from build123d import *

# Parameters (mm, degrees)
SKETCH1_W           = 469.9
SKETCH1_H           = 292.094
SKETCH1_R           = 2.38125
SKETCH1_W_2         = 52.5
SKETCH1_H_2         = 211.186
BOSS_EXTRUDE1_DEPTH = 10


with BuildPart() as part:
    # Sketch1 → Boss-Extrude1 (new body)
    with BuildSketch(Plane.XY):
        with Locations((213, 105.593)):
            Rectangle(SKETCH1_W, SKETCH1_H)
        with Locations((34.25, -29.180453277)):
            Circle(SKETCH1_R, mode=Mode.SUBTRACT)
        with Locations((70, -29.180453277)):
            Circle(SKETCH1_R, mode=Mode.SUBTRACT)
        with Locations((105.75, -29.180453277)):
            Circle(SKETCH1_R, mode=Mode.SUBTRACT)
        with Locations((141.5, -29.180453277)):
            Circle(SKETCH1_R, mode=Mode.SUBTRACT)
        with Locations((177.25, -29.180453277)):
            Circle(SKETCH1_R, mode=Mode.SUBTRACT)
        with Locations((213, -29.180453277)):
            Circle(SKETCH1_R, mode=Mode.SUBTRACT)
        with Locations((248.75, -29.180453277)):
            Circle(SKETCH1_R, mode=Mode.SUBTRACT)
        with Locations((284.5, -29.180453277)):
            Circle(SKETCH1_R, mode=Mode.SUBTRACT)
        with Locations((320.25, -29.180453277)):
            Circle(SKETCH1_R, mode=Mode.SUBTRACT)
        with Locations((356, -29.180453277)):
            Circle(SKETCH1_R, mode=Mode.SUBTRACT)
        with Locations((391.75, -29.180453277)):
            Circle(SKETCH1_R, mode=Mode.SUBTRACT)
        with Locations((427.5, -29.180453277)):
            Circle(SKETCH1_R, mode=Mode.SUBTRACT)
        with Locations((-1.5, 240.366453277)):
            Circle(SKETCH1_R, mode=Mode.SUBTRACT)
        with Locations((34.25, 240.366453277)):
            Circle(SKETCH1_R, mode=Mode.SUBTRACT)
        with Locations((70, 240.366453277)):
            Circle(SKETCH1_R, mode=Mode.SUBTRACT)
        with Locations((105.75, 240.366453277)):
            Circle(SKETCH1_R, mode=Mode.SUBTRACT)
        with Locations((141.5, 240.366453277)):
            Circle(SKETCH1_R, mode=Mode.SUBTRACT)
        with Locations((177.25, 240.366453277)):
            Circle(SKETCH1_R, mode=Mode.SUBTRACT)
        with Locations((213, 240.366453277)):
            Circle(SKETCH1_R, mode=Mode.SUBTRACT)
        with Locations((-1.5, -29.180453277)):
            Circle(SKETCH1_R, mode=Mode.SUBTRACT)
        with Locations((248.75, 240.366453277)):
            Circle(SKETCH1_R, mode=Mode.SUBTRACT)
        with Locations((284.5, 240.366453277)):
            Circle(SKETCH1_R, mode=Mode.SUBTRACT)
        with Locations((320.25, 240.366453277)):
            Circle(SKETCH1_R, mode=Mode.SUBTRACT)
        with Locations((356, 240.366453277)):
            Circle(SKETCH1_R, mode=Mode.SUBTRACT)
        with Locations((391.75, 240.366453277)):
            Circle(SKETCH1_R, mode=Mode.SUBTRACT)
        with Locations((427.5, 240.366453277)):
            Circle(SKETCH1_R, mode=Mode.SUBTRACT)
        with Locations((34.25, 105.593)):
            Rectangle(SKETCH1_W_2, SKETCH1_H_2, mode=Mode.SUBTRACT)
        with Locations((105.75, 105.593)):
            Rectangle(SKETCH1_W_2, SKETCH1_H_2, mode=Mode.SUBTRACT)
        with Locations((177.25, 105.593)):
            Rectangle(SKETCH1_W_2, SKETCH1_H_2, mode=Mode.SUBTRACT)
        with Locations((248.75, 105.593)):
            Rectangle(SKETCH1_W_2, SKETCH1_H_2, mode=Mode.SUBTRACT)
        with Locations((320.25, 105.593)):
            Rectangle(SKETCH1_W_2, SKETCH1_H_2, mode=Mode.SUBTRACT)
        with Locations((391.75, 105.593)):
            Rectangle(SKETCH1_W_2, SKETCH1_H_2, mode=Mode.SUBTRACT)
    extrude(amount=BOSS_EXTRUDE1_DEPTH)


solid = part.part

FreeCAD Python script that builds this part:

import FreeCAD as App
import Part
import Sketcher


def add_polygon(sketch, points):
    """Adds a closed chain of lines whose ends are joined by coincident constraints."""
    first, n = sketch.GeometryCount, len(points)
    for a, b in zip(points, points[1:] + points[:1]):
        sketch.addGeometry(Part.LineSegment(App.Vector(*a, 0), App.Vector(*b, 0)), False)
    for i in range(n):
        sketch.addConstraint(Sketcher.Constraint("Coincident", first + i, 2, first + (i + 1) % n, 1))

doc = App.newDocument("Part")
body = doc.addObject("PartDesign::Body", "Body")

sketch1 = body.newObject("Sketcher::SketchObject", "Sketch")
sketch1.AttachmentSupport = (doc.getObject("XY_Plane"), [""])
sketch1.MapMode = "FlatFace"
add_polygon(sketch1, [(-21.9, 251.6), (-21.9, -40.5), (447.9, -40.5), (447.9, 251.6)])
sketch1.addGeometry(Part.Circle(App.Vector(-1.5, -29.2, 0), App.Vector(0, 0, 1), 2.4), False)
sketch1.addGeometry(Part.Circle(App.Vector(34.2, -29.2, 0), App.Vector(0, 0, 1), 2.4), False)
sketch1.addGeometry(Part.Circle(App.Vector(70, -29.2, 0), App.Vector(0, 0, 1), 2.4), False)
sketch1.addGeometry(Part.Circle(App.Vector(105.8, -29.2, 0), App.Vector(0, 0, 1), 2.4), False)
sketch1.addGeometry(Part.Circle(App.Vector(141.5, -29.2, 0), App.Vector(0, 0, 1), 2.4), False)
sketch1.addGeometry(Part.Circle(App.Vector(177.2, -29.2, 0), App.Vector(0, 0, 1), 2.4), False)
sketch1.addGeometry(Part.Circle(App.Vector(213, -29.2, 0), App.Vector(0, 0, 1), 2.4), False)
sketch1.addGeometry(Part.Circle(App.Vector(248.8, -29.2, 0), App.Vector(0, 0, 1), 2.4), False)
sketch1.addGeometry(Part.Circle(App.Vector(284.5, -29.2, 0), App.Vector(0, 0, 1), 2.4), False)
sketch1.addGeometry(Part.Circle(App.Vector(320.2, -29.2, 0), App.Vector(0, 0, 1), 2.4), False)
sketch1.addGeometry(Part.Circle(App.Vector(356, -29.2, 0), App.Vector(0, 0, 1), 2.4), False)
sketch1.addGeometry(Part.Circle(App.Vector(391.8, -29.2, 0), App.Vector(0, 0, 1), 2.4), False)
sketch1.addGeometry(Part.Circle(App.Vector(427.5, -29.2, 0), App.Vector(0, 0, 1), 2.4), False)
add_polygon(sketch1, [(60.5, 0), (8, 0), (8, 211.2), (60.5, 211.2)])
add_polygon(sketch1, [(132, 0), (79.5, 0), (79.5, 211.2), (132, 211.2)])
add_polygon(sketch1, [(203.5, 0), (151, 0), (151, 211.2), (203.5, 211.2)])
sketch1.addGeometry(Part.Circle(App.Vector(-1.5, 240.4, 0), App.Vector(0, 0, 1), 2.4), False)
sketch1.addGeometry(Part.Circle(App.Vector(34.2, 240.4, 0), App.Vector(0, 0, 1), 2.4), False)
sketch1.addGeometry(Part.Circle(App.Vector(70, 240.4, 0), App.Vector(0, 0, 1), 2.4), False)
sketch1.addGeometry(Part.Circle(App.Vector(105.8, 240.4, 0), App.Vector(0, 0, 1), 2.4), False)
sketch1.addGeometry(Part.Circle(App.Vector(141.5, 240.4, 0), App.Vector(0, 0, 1), 2.4), False)
sketch1.addGeometry(Part.Circle(App.Vector(177.2, 240.4, 0), App.Vector(0, 0, 1), 2.4), False)
add_polygon(sketch1, [(275, 0), (222.5, 0), (222.5, 211.2), (275, 211.2)])
add_polygon(sketch1, [(346.5, 0), (294, 0), (294, 211.2), (346.5, 211.2)])
add_polygon(sketch1, [(418, 0), (365.5, 0), (365.5, 211.2), (418, 211.2)])
sketch1.addGeometry(Part.Circle(App.Vector(213, 240.4, 0), App.Vector(0, 0, 1), 2.4), False)
sketch1.addGeometry(Part.Circle(App.Vector(248.8, 240.4, 0), App.Vector(0, 0, 1), 2.4), False)
sketch1.addGeometry(Part.Circle(App.Vector(284.5, 240.4, 0), App.Vector(0, 0, 1), 2.4), False)
sketch1.addGeometry(Part.Circle(App.Vector(320.2, 240.4, 0), App.Vector(0, 0, 1), 2.4), False)
sketch1.addGeometry(Part.Circle(App.Vector(356, 240.4, 0), App.Vector(0, 0, 1), 2.4), False)
sketch1.addGeometry(Part.Circle(App.Vector(391.8, 240.4, 0), App.Vector(0, 0, 1), 2.4), False)
sketch1.addGeometry(Part.Circle(App.Vector(427.5, 240.4, 0), App.Vector(0, 0, 1), 2.4), False)
sketch1.addConstraint([
    Sketcher.Constraint("Vertical", 0),
    Sketcher.Constraint("Horizontal", 1),
    Sketcher.Constraint("Vertical", 2),
    Sketcher.Constraint("Horizontal", 3),
    Sketcher.Constraint("Horizontal", 17),
    Sketcher.Constraint("Vertical", 18),
    Sketcher.Constraint("Horizontal", 19),
    Sketcher.Constraint("Vertical", 20),
    Sketcher.Constraint("Horizontal", 21),
    Sketcher.Constraint("Vertical", 22),
    Sketcher.Constraint("Horizontal", 23),
    Sketcher.Constraint("Vertical", 24),
    Sketcher.Constraint("Horizontal", 25),
    Sketcher.Constraint("Vertical", 26),
    Sketcher.Constraint("Horizontal", 27),
    Sketcher.Constraint("Vertical", 28),
    Sketcher.Constraint("Horizontal", 35),
    Sketcher.Constraint("Vertical", 36),
    Sketcher.Constraint("Horizontal", 37),
    Sketcher.Constraint("Vertical", 38),
    Sketcher.Constraint("Horizontal", 39),
    Sketcher.Constraint("Vertical", 40),
    Sketcher.Constraint("Horizontal", 41),
    Sketcher.Constraint("Vertical", 42),
    Sketcher.Constraint("Horizontal", 43),
    Sketcher.Constraint("Vertical", 44),
    Sketcher.Constraint("Horizontal", 45),
    Sketcher.Constraint("Vertical", 46),
    Sketcher.Constraint("Equal", 4, 5),
    Sketcher.Constraint("Equal", 5, 6),
    Sketcher.Constraint("Equal", 6, 7),
    Sketcher.Constraint("Equal", 7, 8),
    Sketcher.Constraint("Equal", 8, 9),
    Sketcher.Constraint("Equal", 9, 10),
    Sketcher.Constraint("Equal", 10, 11),
    Sketcher.Constraint("Equal", 11, 12),
    Sketcher.Constraint("Equal", 12, 13),
    Sketcher.Constraint("Equal", 13, 14),
    Sketcher.Constraint("Equal", 14, 15),
    Sketcher.Constraint("Equal", 15, 16),
    Sketcher.Constraint("Equal", 16, 29),
    Sketcher.Constraint("Equal", 29, 30),
    Sketcher.Constraint("Equal", 30, 31),
    Sketcher.Constraint("Equal", 31, 32),
    Sketcher.Constraint("Equal", 32, 33),
    Sketcher.Constraint("Equal", 33, 34),
    Sketcher.Constraint("Equal", 34, 47),
    Sketcher.Constraint("Equal", 47, 48),
    Sketcher.Constraint("Equal", 48, 49),
    Sketcher.Constraint("Equal", 49, 50),
    Sketcher.Constraint("Equal", 50, 51),
    Sketcher.Constraint("Equal", 51, 52),
    Sketcher.Constraint("Equal", 52, 53),
    Sketcher.Constraint("PointOnObject", 17, 2, -1),
    Sketcher.Constraint("PointOnObject", 21, 2, -1),
    Sketcher.Constraint("PointOnObject", 25, 2, -1),
    Sketcher.Constraint("PointOnObject", 35, 2, -1),
    Sketcher.Constraint("PointOnObject", 39, 2, -1),
    Sketcher.Constraint("PointOnObject", 43, 2, -1),
    Sketcher.Constraint("Horizontal", 4, 3, 5, 3),
    Sketcher.Constraint("Horizontal", 5, 3, 6, 3),
    Sketcher.Constraint("Horizontal", 6, 3, 7, 3),
    Sketcher.Constraint("Horizontal", 7, 3, 8, 3),
    Sketcher.Constraint("Horizontal", 8, 3, 9, 3),
    Sketcher.Constraint("Horizontal", 9, 3, 10, 3),
    Sketcher.Constraint("Horizontal", 10, 3, 11, 3),
    Sketcher.Constraint("Horizontal", 11, 3, 12, 3),
    Sketcher.Constraint("Horizontal", 12, 3, 13, 3),
    Sketcher.Constraint("Horizontal", 13, 3, 14, 3),
    Sketcher.Constraint("Horizontal", 14, 3, 15, 3),
    Sketcher.Constraint("Horizontal", 15, 3, 16, 3),
    Sketcher.Constraint("Horizontal", 29, 3, 30, 3),
    Sketcher.Constraint("Horizontal", 30, 3, 31, 3),
    Sketcher.Constraint("Horizontal", 31, 3, 32, 3),
    Sketcher.Constraint("Horizontal", 32, 3, 33, 3),
    Sketcher.Constraint("Horizontal", 33, 3, 34, 3),
    Sketcher.Constraint("Horizontal", 34, 3, 47, 3),
    Sketcher.Constraint("Horizontal", 47, 3, 48, 3),
    Sketcher.Constraint("Horizontal", 48, 3, 49, 3),
    Sketcher.Constraint("Horizontal", 49, 3, 50, 3),
    Sketcher.Constraint("Horizontal", 50, 3, 51, 3),
    Sketcher.Constraint("Horizontal", 51, 3, 52, 3),
    Sketcher.Constraint("Horizontal", 52, 3, 53, 3),
    Sketcher.Constraint("Horizontal", 19, 2, 22, 2),
    Sketcher.Constraint("Horizontal", 23, 2, 26, 2),
    Sketcher.Constraint("Horizontal", 27, 2, 36, 2),
    Sketcher.Constraint("Horizontal", 37, 2, 40, 2),
    Sketcher.Constraint("Horizontal", 41, 2, 44, 2),
    Sketcher.Constraint("Vertical", 4, 3, 29, 3),
    Sketcher.Constraint("Vertical", 5, 3, 30, 3),
    Sketcher.Constraint("Vertical", 6, 3, 31, 3),
    Sketcher.Constraint("Vertical", 7, 3, 32, 3),
    Sketcher.Constraint("Vertical", 8, 3, 33, 3),
    Sketcher.Constraint("Vertical", 9, 3, 34, 3),
    Sketcher.Constraint("Vertical", 10, 3, 47, 3),
    Sketcher.Constraint("Vertical", 11, 3, 48, 3),
    Sketcher.Constraint("Vertical", 12, 3, 49, 3),
    Sketcher.Constraint("Vertical", 13, 3, 50, 3),
    Sketcher.Constraint("Vertical", 14, 3, 51, 3),
    Sketcher.Constraint("Vertical", 15, 3, 52, 3),
    Sketcher.Constraint("Vertical", 16, 3, 53, 3),
    Sketcher.Constraint("Equal", 19, 21),
    Sketcher.Constraint("Equal", 23, 25),
    Sketcher.Constraint("Equal", 27, 35),
    Sketcher.Constraint("Equal", 37, 39),
    Sketcher.Constraint("Equal", 41, 43),
    Sketcher.Constraint("DistanceX", 1, 1, 1, 2, 469.9),
    Sketcher.Constraint("DistanceX", 17, 2, 17, 1, 52.5),
    Sketcher.Constraint("DistanceX", -1, 1, 6, 3, 70.0),
    Sketcher.Constraint("DistanceX", -1, 1, 10, 3, 213.0),
    Sketcher.Constraint("DistanceX", -1, 1, 14, 3, 356.0),
    Sketcher.Constraint("DistanceX", -1, 1, 17, 2, 8.0),
    Sketcher.Constraint("DistanceX", -1, 1, 23, 2, 132.0),
    Sketcher.Constraint("DistanceX", -1, 1, 25, 2, 151.0),
    Sketcher.Constraint("DistanceX", -1, 1, 37, 2, 275.0),
    Sketcher.Constraint("DistanceX", -1, 1, 39, 2, 294.0),
    Sketcher.Constraint("DistanceX", -1, 1, 45, 2, 418.0),
    Sketcher.Constraint("DistanceX", 4, 3, 8, 3, 143.0),
    Sketcher.Constraint("DistanceX", 5, 3, 9, 3, 143.0),
    Sketcher.Constraint("DistanceX", 7, 3, 11, 3, 143.0),
    Sketcher.Constraint("DistanceX", 8, 3, 12, 3, 143.0),
    Sketcher.Constraint("DistanceX", 9, 3, 13, 3, 143.0),
    Sketcher.Constraint("DistanceX", 11, 3, 15, 3, 143.0),
    Sketcher.Constraint("DistanceX", 12, 3, 16, 3, 143.0),
    Sketcher.Constraint("DistanceX", 29, 3, 19, 2, 62.0),
    Sketcher.Constraint("Diameter", 4, 4.7625),
    Sketcher.Constraint("DistanceX", 5, 3, 7, 3, 71.5),
    Sketcher.Constraint("DistanceX", 0, 2, 5, 3, 56.2),
    Sketcher.Constraint("DistanceY", 0, 2, 0, 1, 292.094),
    Sketcher.Constraint("DistanceY", 18, 1, 18, 2, 211.186),
    Sketcher.Constraint("DistanceX", -1, 1, 5, 3, 34.25),
    Sketcher.Constraint("DistanceY", -1, 1, 2, 2, 251.64),
    Sketcher.Constraint("DistanceY", 4, 3, -1, 1, 29.180453),
    Sketcher.Constraint("DistanceY", -1, 1, 29, 3, 240.366453),
])
pad1 = body.newObject("PartDesign::Pad", "Pad")
pad1.Profile = sketch1
pad1.Length = 10

doc.recompute()
